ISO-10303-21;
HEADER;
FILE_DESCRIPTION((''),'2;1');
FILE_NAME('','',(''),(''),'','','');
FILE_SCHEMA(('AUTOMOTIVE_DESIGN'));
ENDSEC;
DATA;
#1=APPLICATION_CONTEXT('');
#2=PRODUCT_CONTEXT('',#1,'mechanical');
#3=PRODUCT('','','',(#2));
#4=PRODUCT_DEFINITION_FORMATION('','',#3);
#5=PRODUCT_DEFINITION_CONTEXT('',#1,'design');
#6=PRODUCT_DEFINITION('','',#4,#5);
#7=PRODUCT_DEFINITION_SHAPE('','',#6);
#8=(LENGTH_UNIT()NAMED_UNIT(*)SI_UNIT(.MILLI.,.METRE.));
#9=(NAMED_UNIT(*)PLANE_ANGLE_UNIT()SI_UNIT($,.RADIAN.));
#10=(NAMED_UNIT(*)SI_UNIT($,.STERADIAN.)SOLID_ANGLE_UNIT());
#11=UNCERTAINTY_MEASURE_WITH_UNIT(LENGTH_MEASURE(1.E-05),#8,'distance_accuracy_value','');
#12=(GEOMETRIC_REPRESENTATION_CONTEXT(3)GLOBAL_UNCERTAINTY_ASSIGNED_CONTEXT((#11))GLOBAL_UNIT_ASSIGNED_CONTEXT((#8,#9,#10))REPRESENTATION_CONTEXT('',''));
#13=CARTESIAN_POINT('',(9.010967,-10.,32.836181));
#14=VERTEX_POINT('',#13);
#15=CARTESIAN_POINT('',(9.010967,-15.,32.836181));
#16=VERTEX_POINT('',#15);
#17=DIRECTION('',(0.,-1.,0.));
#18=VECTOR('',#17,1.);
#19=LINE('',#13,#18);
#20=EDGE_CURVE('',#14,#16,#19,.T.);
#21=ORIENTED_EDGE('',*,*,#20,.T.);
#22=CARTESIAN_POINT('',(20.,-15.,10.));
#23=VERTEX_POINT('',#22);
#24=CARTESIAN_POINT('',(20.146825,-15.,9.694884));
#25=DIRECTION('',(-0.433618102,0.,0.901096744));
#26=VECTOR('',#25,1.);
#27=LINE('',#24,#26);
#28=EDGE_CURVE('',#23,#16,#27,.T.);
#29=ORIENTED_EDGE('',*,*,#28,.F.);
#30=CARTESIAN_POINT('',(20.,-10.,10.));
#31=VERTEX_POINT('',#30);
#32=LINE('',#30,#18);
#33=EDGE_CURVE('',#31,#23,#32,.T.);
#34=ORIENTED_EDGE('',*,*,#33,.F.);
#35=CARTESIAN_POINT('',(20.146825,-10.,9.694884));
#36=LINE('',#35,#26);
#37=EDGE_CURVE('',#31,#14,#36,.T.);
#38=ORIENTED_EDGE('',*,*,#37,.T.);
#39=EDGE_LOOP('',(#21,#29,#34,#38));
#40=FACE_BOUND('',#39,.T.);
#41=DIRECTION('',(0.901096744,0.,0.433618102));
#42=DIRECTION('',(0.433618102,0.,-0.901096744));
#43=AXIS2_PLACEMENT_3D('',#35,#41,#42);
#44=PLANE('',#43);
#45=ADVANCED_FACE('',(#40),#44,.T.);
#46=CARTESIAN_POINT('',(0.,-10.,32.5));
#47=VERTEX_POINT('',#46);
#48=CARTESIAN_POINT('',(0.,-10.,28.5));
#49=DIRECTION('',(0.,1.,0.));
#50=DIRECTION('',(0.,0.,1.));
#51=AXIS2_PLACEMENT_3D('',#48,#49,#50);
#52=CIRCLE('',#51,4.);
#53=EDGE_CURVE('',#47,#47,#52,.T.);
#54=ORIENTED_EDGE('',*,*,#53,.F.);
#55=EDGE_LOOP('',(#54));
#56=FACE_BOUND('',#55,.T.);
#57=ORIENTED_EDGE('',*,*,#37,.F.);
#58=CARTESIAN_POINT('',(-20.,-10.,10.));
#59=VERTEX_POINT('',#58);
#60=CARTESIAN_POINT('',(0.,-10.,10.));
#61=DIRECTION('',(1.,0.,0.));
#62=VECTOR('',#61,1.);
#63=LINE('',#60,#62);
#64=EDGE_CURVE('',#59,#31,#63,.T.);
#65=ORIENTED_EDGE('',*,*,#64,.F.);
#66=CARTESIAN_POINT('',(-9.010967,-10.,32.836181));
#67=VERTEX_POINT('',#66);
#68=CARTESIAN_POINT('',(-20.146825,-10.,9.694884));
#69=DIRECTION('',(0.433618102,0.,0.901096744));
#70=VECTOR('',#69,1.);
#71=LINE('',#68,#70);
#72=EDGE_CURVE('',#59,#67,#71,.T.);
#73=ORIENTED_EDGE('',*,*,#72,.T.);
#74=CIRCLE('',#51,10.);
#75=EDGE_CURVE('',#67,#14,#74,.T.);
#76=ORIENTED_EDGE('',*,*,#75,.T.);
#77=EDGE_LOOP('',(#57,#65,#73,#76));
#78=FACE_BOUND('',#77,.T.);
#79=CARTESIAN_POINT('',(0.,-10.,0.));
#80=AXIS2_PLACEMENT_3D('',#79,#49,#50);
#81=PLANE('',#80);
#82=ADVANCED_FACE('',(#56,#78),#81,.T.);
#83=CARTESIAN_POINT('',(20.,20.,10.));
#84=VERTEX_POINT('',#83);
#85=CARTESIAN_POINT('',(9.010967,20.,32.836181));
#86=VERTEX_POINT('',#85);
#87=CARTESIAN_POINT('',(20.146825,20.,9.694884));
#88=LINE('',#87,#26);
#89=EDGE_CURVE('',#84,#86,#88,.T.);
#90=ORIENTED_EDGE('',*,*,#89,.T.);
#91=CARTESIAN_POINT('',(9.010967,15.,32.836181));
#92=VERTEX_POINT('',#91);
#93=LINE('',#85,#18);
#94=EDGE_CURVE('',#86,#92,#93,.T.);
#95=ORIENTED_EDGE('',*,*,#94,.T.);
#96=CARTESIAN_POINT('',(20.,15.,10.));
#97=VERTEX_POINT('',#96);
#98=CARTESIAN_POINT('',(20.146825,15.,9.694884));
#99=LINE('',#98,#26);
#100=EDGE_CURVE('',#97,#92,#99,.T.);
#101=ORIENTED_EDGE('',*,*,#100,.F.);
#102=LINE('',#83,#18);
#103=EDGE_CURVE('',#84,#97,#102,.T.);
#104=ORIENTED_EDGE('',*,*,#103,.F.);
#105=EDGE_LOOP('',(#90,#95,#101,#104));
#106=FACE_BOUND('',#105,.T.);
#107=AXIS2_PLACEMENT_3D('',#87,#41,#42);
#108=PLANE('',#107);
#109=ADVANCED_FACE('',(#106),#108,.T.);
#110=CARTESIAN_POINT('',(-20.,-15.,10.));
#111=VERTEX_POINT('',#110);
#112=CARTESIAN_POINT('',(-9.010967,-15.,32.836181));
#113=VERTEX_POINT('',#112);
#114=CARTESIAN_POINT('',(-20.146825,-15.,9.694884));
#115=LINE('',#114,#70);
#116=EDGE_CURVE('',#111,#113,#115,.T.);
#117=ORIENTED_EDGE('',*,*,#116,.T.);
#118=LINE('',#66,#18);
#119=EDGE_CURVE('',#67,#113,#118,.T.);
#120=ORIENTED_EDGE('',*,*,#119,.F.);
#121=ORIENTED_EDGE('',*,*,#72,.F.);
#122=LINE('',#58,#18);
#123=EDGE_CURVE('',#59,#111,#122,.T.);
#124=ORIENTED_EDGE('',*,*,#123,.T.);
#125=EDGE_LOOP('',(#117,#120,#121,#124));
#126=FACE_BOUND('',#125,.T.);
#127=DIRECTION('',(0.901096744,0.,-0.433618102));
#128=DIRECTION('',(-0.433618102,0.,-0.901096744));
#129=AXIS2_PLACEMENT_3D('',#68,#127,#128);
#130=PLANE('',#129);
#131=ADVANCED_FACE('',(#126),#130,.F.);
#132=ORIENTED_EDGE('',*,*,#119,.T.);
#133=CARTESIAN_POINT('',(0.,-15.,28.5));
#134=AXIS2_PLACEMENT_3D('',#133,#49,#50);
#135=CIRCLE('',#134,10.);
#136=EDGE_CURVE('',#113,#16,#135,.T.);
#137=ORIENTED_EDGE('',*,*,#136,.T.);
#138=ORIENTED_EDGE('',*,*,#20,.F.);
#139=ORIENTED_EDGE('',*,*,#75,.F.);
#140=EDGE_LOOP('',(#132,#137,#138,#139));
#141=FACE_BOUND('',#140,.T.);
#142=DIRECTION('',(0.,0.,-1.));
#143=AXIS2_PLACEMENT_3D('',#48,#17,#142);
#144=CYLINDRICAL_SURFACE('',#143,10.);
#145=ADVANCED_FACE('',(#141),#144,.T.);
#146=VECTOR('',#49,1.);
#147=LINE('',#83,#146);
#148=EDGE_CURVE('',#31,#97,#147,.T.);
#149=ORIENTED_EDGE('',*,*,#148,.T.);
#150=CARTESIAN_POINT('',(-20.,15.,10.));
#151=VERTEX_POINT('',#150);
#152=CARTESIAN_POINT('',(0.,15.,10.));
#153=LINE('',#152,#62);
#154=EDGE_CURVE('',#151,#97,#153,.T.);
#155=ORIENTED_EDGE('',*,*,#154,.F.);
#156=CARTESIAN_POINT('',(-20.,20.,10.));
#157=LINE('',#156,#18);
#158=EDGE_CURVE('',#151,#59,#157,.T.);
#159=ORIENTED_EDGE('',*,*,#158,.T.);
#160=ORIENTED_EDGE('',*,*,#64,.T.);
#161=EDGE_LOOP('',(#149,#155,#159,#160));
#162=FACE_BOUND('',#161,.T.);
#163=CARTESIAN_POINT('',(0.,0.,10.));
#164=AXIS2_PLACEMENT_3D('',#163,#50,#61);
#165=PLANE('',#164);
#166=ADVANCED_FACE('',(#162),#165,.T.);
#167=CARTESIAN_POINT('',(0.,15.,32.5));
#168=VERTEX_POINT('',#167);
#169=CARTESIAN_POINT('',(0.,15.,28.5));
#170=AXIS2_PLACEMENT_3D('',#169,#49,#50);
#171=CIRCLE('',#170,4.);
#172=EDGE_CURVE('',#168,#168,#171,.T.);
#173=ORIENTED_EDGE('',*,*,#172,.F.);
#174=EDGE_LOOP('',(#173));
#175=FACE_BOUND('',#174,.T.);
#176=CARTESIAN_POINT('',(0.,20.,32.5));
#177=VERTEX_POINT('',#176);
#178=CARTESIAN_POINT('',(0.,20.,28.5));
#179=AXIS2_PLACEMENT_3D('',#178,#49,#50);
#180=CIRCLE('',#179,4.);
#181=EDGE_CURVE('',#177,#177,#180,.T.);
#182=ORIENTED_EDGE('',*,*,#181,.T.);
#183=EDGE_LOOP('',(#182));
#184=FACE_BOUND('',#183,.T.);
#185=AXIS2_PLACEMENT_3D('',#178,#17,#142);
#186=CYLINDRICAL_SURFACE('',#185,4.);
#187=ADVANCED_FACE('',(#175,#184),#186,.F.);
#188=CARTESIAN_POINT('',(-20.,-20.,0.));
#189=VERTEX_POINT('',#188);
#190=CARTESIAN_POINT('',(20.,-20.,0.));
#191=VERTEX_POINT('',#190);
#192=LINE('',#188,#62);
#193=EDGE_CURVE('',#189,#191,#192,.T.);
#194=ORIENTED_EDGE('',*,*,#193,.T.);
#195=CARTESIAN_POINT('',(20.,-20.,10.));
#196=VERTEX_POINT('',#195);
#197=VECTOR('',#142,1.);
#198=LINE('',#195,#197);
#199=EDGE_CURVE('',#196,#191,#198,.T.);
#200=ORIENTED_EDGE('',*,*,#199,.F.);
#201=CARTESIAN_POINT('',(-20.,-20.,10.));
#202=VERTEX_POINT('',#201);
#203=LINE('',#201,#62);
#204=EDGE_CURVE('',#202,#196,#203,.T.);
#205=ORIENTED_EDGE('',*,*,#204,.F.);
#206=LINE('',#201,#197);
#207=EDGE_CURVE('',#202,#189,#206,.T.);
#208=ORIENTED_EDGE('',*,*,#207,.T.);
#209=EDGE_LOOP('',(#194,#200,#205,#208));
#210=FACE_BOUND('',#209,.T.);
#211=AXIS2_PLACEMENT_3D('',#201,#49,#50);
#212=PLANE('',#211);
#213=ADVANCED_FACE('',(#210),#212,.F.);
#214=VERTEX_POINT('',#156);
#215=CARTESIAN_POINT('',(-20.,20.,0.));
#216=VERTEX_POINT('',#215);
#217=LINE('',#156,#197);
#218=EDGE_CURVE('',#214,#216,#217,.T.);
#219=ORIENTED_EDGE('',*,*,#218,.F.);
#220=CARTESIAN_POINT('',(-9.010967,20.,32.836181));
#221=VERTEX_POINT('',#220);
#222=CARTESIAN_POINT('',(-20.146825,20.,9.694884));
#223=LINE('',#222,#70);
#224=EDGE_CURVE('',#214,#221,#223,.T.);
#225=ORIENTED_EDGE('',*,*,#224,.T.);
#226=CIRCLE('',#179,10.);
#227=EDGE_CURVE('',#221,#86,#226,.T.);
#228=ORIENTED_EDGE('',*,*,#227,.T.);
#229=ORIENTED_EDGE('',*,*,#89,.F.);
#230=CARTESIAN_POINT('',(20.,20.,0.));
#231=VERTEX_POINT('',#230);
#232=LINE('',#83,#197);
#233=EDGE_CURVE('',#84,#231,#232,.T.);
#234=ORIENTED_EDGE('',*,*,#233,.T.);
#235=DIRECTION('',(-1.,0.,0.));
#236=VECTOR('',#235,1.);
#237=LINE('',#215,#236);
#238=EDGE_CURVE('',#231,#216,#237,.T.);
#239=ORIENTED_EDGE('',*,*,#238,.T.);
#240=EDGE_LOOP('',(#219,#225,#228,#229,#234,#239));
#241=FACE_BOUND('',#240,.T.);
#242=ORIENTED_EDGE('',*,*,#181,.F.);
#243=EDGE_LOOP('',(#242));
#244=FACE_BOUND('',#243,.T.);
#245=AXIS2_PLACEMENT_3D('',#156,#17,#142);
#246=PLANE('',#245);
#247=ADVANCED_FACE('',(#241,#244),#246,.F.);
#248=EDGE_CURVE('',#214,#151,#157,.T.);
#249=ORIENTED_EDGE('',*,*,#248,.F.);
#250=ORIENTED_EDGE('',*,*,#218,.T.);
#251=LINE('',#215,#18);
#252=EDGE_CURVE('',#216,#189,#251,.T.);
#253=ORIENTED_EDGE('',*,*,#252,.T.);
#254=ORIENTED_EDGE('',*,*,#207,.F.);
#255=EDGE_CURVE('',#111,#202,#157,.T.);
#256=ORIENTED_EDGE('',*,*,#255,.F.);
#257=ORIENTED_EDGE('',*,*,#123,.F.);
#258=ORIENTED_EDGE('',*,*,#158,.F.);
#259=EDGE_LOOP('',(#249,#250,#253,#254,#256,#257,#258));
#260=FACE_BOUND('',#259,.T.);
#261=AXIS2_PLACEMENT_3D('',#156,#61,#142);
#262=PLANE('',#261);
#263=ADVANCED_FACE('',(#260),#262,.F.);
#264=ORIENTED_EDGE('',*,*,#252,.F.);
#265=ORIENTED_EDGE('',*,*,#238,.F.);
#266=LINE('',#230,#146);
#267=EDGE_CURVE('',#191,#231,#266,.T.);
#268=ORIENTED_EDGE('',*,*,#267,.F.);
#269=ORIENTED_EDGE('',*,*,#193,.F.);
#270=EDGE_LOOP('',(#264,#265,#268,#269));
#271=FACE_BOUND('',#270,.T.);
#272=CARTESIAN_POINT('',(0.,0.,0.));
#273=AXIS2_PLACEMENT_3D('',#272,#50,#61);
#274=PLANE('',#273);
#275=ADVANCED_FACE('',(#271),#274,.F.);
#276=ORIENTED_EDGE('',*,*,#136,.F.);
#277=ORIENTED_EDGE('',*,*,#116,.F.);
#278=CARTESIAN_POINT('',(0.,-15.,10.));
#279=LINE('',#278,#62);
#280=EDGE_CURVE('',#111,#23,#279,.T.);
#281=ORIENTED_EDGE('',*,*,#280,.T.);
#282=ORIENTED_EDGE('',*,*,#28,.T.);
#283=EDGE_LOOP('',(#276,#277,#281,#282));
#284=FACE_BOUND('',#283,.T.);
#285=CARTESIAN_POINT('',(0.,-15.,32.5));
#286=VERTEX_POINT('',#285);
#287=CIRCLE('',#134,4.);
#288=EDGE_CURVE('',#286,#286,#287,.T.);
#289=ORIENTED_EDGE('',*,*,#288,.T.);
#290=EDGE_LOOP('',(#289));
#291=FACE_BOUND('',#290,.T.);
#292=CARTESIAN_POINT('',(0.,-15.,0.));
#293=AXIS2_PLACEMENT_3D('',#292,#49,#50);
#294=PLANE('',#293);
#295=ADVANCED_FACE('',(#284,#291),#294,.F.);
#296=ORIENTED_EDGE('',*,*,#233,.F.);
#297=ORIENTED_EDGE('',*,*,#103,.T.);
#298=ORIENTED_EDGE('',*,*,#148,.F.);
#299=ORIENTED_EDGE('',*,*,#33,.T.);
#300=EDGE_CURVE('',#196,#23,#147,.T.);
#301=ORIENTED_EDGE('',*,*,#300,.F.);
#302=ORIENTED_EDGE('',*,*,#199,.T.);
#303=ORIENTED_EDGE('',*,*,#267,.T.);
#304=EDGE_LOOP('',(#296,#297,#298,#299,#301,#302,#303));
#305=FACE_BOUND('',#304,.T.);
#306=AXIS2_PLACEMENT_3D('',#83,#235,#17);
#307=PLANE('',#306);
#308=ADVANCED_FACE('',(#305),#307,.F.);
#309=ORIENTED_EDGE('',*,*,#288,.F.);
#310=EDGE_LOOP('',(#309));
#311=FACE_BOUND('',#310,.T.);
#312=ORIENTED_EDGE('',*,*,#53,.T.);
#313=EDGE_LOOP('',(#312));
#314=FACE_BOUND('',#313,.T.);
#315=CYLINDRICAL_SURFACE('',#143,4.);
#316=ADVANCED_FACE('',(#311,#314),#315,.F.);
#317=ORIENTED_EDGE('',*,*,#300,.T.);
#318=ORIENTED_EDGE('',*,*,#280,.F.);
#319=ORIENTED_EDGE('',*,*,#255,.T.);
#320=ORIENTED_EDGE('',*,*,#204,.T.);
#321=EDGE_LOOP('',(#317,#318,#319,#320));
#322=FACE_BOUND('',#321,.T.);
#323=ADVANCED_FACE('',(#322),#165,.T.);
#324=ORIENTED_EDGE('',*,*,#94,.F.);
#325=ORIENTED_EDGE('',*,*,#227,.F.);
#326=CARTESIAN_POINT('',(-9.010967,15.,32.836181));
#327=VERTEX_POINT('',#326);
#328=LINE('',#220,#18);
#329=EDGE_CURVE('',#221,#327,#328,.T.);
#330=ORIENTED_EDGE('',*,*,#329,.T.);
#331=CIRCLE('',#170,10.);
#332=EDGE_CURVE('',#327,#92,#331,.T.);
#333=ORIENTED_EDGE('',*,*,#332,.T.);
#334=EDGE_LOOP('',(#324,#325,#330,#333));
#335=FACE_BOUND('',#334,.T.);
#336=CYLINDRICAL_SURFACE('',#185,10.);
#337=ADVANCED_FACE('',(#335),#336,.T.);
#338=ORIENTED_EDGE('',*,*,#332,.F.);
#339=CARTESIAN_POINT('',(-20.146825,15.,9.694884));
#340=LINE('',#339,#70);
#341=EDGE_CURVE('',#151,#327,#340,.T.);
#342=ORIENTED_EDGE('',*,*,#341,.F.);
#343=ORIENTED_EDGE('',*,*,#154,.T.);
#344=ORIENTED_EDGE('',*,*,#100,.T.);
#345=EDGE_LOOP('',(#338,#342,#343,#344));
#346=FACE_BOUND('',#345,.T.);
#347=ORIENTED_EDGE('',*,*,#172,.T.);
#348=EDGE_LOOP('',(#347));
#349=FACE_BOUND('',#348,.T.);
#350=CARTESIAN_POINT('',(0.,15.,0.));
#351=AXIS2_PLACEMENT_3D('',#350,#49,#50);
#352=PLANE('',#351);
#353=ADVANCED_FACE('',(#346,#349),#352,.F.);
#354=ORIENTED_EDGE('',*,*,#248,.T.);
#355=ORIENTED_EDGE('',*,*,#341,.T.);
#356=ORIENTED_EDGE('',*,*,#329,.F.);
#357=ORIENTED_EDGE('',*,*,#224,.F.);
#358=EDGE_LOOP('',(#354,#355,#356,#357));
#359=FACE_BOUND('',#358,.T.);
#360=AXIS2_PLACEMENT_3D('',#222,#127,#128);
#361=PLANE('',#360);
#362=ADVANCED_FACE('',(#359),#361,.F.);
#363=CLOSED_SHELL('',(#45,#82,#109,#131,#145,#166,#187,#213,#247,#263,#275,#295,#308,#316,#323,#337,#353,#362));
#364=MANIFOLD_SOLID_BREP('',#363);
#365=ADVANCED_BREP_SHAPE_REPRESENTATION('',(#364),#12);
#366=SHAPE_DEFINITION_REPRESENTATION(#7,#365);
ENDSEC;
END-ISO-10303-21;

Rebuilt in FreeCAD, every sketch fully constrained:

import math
import FreeCAD as App
import Part
import Sketcher
from FreeCAD import Vector
Q = App.Units.Quantity

doc = App.newDocument("Part")
body = doc.addObject("PartDesign::Body", "Body")

# Sketch on XY plane
sketch1 = body.newObject("Sketcher::SketchObject", "Sketch")
sketch1.AttachmentSupport = (doc.getObject("XY_Plane"), [""])
sketch1.MapMode = "FlatFace"
sketch1.addGeometry([
    Part.LineSegment(Vector(-20, 20, 0), Vector(-20, -20, 0)),
    Part.LineSegment(Vector(-20, -20, 0), Vector(20, -20, 0)),
    Part.LineSegment(Vector(20, -20, 0), Vector(20, 20, 0)),
    Part.LineSegment(Vector(20, 20, 0), Vector(-20, 20, 0)),
], False)
sketch1.addConstraint([
    Sketcher.Constraint("Coincident", 0, 2, 1, 1),
    Sketcher.Constraint("Coincident", 1, 2, 2, 1),
    Sketcher.Constraint("Coincident", 2, 2, 3, 1),
    Sketcher.Constraint("Coincident", 3, 2, 0, 1),
    Sketcher.Constraint("Vertical", 0),
    Sketcher.Constraint("Horizontal", 1),
    Sketcher.Constraint("Vertical", 2),
    Sketcher.Constraint("Horizontal", 3),
    Sketcher.Constraint("Symmetric", 0, 2, 2, 2, -1, 1),
    Sketcher.Constraint("Equal", 3, 0),
    Sketcher.Constraint("DistanceX", 1, 1, 1, 2, Q("40 mm")),
])
pad1 = body.newObject("PartDesign::Pad", "Pad")
pad1.Profile = sketch1
pad1.Length = 10

# Sketch on XZ plane
sketch2 = body.newObject("Sketcher::SketchObject", "Sketch001")
sketch2.AttachmentSupport = (doc.getObject("XZ_Plane"), [""])
sketch2.MapMode = "FlatFace"
sketch2.AttachmentOffset = App.Placement(Vector(0, 0, -15), App.Rotation())
sketch2.addGeometry([
    Part.LineSegment(Vector(20, 10, 0), Vector(-20, 10, 0)),  # 0
    Part.LineSegment(Vector(-20, 10, 0), Vector(-9.010967, 32.836181, 0)),  # 1
    Part.ArcOfCircle(Part.Circle(Vector(0, 28.5, 0), Vector(0, 0, 1), 10), math.radians(25.697394), math.radians(154.302606)),  # 2
    Part.LineSegment(Vector(9.010967, 32.836181, 0), Vector(20, 10, 0)),  # 3
    Part.Circle(Vector(0, 28.5, 0), Vector(0, 0, 1), 4),  # 4
], False)
sketch2.addConstraint([
    Sketcher.Constraint("Coincident", 0, 2, 1, 1),
    Sketcher.Constraint("Tangent", 1, 2, 2, 2),
    Sketcher.Constraint("Tangent", 2, 1, 3, 1),
    Sketcher.Constraint("Coincident", 3, 2, 0, 1),
    Sketcher.Constraint("Horizontal", 0),
    Sketcher.Constraint("Coincident", 4, 3, 2, 3),
    Sketcher.Constraint("Symmetric", 1, 2, 2, 1, -2),
    Sketcher.Constraint("Diameter", 4, Q("8 mm")),
    Sketcher.Constraint("Radius", 2, Q("10 mm")),
    Sketcher.Constraint("DistanceX", 0, 2, 0, 1, Q("40 mm")),
    Sketcher.Constraint("DistanceY", -1, 1, 0, 2, Q("10 mm")),
    Sketcher.Constraint("DistanceY", -1, 1, 2, 3, Q("28.5 mm")),
])
pad2 = body.newObject("PartDesign::Pad", "Pad001")
pad2.Profile = sketch2
pad2.Length = 5
pad2.Reversed = True
doc.recompute()

linearpattern = body.newObject("PartDesign::LinearPattern", "LinearPattern")
linearpattern.Originals = [pad2]
linearpattern.Direction = (doc.getObject("Y_Axis"), [""])
linearpattern.Mode = "offset"
linearpattern.Offset = 30
linearpattern.Occurrences = 2
linearpattern.Reversed = True
body.Tip = linearpattern

doc.recompute()
